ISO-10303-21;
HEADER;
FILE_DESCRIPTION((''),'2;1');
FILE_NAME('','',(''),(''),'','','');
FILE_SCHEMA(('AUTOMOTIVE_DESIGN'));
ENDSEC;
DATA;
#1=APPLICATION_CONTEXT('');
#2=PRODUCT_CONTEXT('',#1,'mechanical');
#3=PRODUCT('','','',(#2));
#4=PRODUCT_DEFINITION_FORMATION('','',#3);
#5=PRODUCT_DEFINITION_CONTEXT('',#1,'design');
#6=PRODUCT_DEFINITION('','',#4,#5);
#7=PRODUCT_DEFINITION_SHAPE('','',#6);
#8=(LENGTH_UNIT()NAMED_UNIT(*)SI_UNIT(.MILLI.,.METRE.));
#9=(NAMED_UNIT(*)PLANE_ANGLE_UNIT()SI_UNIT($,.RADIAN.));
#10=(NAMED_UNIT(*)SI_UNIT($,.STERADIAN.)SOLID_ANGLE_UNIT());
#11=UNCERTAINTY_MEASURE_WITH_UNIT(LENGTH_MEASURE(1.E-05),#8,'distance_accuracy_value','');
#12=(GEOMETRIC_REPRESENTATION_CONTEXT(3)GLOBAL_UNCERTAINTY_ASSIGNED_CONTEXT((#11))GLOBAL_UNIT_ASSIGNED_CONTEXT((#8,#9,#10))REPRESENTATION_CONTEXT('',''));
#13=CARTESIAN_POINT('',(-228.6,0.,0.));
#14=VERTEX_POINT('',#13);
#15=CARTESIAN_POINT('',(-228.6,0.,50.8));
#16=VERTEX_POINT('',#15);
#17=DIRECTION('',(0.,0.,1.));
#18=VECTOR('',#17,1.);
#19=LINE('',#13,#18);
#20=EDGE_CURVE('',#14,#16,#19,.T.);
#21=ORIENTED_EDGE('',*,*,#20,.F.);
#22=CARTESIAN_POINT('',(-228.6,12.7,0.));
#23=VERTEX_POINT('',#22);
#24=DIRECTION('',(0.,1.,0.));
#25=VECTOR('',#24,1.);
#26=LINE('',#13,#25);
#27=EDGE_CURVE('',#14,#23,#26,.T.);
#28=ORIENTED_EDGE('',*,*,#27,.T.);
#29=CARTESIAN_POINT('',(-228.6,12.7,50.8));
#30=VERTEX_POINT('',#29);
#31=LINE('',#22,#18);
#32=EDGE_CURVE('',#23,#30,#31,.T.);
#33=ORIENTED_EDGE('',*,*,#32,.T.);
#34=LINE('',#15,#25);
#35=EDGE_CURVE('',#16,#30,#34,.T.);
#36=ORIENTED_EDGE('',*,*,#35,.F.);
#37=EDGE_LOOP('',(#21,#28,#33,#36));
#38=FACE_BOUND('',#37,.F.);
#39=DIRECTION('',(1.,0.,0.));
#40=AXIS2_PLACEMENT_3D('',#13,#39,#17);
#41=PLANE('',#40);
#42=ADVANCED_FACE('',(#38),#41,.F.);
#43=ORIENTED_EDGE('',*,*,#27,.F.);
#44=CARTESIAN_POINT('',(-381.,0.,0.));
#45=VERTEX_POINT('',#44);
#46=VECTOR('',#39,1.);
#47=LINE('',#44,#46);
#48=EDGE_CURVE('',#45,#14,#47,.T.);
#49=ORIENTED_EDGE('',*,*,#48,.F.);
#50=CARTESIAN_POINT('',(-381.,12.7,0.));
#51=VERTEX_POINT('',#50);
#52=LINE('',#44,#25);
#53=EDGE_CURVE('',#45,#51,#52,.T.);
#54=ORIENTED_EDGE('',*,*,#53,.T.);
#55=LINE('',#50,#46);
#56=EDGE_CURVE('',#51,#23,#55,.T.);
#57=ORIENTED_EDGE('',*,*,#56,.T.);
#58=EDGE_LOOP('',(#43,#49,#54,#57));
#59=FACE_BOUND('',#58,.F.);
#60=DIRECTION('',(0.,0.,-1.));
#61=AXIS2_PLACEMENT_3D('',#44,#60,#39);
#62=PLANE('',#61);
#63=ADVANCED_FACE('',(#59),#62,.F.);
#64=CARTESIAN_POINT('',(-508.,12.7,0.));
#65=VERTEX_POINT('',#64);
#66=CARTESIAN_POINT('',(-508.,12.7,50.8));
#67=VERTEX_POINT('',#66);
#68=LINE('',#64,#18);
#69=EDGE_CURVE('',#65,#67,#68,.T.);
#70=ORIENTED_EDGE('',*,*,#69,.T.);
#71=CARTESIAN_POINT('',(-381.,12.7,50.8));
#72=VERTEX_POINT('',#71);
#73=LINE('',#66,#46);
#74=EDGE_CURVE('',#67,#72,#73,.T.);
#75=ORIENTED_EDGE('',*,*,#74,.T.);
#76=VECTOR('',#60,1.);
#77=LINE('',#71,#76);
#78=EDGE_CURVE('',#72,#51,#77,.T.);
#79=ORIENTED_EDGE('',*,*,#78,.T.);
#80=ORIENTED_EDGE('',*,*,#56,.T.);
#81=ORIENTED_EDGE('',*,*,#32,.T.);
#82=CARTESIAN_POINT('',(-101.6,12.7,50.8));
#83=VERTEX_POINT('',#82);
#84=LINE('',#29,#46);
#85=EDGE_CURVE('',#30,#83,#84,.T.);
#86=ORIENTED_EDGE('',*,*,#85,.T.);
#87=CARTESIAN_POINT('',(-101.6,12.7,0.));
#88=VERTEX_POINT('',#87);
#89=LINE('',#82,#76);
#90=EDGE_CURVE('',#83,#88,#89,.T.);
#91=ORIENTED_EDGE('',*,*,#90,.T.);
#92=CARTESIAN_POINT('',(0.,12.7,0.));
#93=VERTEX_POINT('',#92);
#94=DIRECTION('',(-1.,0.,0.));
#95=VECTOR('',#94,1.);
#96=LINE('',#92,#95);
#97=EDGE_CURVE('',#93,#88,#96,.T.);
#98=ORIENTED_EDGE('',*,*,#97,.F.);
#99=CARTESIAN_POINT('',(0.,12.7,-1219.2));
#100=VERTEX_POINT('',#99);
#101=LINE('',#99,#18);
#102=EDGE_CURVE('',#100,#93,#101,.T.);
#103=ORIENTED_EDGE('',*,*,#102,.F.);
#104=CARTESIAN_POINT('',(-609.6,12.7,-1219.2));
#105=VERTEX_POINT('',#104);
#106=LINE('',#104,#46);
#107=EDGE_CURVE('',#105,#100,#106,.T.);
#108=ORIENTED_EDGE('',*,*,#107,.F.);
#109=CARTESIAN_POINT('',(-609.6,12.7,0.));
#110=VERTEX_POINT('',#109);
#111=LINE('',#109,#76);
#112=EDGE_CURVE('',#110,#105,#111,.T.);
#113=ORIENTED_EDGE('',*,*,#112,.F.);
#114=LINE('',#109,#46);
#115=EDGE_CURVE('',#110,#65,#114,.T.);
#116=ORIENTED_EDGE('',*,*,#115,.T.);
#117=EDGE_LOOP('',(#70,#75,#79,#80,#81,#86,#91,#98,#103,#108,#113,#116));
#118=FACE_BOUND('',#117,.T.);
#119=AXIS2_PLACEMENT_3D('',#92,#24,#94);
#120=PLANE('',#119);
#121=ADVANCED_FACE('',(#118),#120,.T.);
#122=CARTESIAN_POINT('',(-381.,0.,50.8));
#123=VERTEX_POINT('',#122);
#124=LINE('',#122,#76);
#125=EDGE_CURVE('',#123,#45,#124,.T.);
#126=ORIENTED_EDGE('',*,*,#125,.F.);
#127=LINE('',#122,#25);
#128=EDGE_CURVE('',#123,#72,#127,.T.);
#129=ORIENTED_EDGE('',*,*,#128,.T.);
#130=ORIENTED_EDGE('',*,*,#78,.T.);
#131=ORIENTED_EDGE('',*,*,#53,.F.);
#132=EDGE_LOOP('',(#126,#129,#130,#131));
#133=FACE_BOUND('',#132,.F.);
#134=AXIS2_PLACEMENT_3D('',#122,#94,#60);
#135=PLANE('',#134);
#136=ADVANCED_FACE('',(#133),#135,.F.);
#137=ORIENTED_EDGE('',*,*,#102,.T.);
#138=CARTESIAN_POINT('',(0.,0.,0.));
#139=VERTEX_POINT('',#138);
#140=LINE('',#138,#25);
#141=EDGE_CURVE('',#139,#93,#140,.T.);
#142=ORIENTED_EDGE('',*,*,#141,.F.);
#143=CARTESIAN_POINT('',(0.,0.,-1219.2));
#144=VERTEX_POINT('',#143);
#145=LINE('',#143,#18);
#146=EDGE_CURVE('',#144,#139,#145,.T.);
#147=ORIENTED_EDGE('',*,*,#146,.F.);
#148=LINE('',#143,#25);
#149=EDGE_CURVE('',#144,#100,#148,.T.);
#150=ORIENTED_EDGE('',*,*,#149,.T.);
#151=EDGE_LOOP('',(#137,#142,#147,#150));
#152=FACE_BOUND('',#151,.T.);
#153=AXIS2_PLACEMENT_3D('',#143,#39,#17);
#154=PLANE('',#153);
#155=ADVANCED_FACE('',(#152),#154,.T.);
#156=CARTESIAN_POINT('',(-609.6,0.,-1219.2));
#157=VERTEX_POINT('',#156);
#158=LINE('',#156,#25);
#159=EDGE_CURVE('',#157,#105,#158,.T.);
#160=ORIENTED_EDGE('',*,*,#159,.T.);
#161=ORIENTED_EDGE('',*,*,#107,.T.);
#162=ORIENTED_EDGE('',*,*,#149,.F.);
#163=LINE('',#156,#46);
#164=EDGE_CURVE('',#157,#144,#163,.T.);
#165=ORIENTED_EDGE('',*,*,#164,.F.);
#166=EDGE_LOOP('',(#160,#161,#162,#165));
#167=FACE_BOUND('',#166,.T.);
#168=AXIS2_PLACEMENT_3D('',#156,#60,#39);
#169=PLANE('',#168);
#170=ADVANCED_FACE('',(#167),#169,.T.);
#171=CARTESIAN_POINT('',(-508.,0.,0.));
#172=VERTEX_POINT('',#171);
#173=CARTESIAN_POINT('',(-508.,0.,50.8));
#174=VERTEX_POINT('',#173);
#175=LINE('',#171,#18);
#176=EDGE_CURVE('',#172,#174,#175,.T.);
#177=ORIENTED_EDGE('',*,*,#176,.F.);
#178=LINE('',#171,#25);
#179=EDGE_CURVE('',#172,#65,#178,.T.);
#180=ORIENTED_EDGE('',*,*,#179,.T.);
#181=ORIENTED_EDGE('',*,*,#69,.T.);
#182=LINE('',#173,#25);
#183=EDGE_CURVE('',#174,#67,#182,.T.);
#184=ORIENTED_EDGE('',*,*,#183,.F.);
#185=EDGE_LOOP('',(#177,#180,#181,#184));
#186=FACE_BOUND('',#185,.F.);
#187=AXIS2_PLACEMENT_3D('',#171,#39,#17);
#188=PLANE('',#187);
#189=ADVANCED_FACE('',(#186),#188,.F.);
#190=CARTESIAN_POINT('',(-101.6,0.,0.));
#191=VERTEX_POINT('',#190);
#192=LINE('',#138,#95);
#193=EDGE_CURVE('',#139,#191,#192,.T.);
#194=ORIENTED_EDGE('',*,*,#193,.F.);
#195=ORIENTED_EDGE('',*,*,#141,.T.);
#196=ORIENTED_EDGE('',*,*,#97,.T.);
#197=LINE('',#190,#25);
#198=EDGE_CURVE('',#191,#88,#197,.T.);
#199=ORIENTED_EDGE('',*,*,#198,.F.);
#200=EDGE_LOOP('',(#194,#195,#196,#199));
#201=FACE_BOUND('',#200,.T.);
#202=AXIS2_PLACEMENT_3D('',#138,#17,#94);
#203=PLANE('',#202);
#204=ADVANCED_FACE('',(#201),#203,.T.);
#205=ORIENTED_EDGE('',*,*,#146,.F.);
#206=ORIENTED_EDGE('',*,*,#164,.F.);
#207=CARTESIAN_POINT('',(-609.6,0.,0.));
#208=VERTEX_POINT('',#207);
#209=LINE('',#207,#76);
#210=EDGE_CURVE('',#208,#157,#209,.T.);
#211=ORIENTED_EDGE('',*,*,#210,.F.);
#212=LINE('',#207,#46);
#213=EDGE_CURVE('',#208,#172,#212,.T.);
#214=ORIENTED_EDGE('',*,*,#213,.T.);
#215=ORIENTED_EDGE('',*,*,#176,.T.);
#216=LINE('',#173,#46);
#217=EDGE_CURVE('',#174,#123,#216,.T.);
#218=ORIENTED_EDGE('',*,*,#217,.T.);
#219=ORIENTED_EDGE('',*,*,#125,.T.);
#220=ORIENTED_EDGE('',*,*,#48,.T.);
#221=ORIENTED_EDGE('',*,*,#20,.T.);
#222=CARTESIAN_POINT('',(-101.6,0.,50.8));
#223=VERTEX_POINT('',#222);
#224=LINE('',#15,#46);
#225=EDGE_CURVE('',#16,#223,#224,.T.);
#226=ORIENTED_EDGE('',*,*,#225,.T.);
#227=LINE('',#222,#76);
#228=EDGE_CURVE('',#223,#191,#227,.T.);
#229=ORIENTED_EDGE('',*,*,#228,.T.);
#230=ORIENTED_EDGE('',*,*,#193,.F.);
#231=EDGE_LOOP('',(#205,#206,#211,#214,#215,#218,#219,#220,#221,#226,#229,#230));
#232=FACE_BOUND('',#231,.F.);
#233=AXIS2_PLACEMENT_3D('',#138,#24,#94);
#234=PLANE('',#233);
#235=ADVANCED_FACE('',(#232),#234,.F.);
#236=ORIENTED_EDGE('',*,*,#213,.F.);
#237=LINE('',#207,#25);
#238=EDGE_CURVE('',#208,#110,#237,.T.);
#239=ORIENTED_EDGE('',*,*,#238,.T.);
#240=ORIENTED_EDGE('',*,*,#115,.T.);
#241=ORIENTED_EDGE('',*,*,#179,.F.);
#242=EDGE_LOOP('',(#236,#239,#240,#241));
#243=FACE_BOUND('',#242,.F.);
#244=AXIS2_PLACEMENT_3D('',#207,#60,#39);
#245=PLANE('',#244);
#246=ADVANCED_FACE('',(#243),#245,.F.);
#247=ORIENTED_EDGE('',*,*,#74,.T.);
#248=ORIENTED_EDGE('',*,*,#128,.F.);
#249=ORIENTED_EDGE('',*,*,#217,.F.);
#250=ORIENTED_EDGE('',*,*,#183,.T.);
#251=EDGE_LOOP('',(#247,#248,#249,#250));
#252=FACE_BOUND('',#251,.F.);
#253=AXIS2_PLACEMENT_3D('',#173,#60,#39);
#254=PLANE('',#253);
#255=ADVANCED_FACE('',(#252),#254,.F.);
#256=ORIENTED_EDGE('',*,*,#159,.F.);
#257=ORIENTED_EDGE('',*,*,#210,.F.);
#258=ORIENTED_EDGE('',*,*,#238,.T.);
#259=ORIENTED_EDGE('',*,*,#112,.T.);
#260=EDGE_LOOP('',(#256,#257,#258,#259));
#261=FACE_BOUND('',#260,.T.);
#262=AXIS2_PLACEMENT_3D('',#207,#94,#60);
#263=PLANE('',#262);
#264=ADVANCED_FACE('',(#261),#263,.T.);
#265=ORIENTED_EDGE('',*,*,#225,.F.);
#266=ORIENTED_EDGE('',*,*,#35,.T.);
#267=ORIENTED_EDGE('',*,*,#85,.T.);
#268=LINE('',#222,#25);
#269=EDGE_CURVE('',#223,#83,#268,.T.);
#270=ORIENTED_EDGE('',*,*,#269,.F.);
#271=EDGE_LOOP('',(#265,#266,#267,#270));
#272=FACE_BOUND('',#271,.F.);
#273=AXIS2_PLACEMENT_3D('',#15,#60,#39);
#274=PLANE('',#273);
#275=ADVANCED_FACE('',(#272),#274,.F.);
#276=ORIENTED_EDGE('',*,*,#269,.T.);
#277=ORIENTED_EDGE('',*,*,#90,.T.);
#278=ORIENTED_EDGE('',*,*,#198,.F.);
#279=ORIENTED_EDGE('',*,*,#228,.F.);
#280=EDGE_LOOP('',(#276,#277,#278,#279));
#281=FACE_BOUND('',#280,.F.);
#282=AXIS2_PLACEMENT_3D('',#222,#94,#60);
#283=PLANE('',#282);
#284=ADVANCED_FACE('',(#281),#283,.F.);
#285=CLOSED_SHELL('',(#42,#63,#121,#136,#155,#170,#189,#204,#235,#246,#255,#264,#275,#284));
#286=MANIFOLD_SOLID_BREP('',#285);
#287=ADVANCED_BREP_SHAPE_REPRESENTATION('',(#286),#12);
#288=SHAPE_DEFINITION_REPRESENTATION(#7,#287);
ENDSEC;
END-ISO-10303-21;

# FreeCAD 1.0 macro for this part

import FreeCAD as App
import Part
import Sketcher

V = App.Vector
Q = App.Units.Quantity

doc = App.newDocument("Part")
params = doc.addObject("Spreadsheet::Sheet", "Params")
for row, (alias, value) in enumerate([
    ("sketch1_width", "4 in"),
    ("sketch1_width2", "5 in"),
    ("sketch1_width3", "6 in"),
    ("sketch1_height", "48 in"),
    ("sketch1_height2", "2 in"),
    ("pad1_length", "0.5 in"),
], start=1):
    params.set(f"A{row}", alias)
    params.set(f"B{row}", "=" + value)
    params.setAlias(f"B{row}", alias)

body = doc.addObject("PartDesign::Body", "Body")

# Sketch on XZ plane
sketch1 = body.newObject("Sketcher::SketchObject", "Sketch")
sketch1.AttachmentSupport = (doc.getObject("XZ_Plane"), [""])
sketch1.MapMode = "FlatFace"
sketch1.addGeometry([
    Part.LineSegment(V(-609.6, -1219.2, 0), V(-609.6, 0, 0)),  # 0
    Part.LineSegment(V(-609.6, 0, 0), V(-508, 0, 0)),  # 1
    Part.LineSegment(V(-508, 0, 0), V(-508, 50.8, 0)),  # 2
    Part.LineSegment(V(-508, 50.8, 0), V(-381, 50.8, 0)),  # 3
    Part.LineSegment(V(-381, 50.8, 0), V(-381, 0, 0)),  # 4
    Part.LineSegment(V(-381, 0, 0), V(-228.6, 0, 0)),  # 5
    Part.LineSegment(V(-228.6, 0, 0), V(-228.6, 50.8, 0)),  # 6
    Part.LineSegment(V(-228.6, 50.8, 0), V(-101.6, 50.8, 0)),  # 7
    Part.LineSegment(V(-101.6, 50.8, 0), V(-101.6, 0, 0)),  # 8
    Part.LineSegment(V(-101.6, 0, 0), V(0, 0, 0)),  # 9
    Part.LineSegment(V(0, 0, 0), V(0, -1219.2, 0)),  # 10
    Part.LineSegment(V(0, -1219.2, 0), V(-609.6, -1219.2, 0)),  # 11
], False)
sketch1.addConstraint([
    Sketcher.Constraint("Coincident", 0, 2, 1, 1),
    Sketcher.Constraint("Coincident", 1, 2, 2, 1),
    Sketcher.Constraint("Coincident", 2, 2, 3, 1),
    Sketcher.Constraint("Coincident", 3, 2, 4, 1),
    Sketcher.Constraint("Coincident", 4, 2, 5, 1),
    Sketcher.Constraint("Coincident", 5, 2, 6, 1),
    Sketcher.Constraint("Coincident", 6, 2, 7, 1),
    Sketcher.Constraint("Coincident", 7, 2, 8, 1),
    Sketcher.Constraint("Coincident", 8, 2, 9, 1),
    Sketcher.Constraint("Coincident", 9, 2, 10, 1),
    Sketcher.Constraint("Coincident", 10, 2, 11, 1),
    Sketcher.Constraint("Coincident", 11, 2, 0, 1),
    Sketcher.Constraint("Vertical", 0),
    Sketcher.Constraint("Horizontal", 1),
    Sketcher.Constraint("Vertical", 2),
    Sketcher.Constraint("Horizontal", 3),
    Sketcher.Constraint("Vertical", 4),
    Sketcher.Constraint("Horizontal", 5),
    Sketcher.Constraint("Vertical", 6),
    Sketcher.Constraint("Horizontal", 7),
    Sketcher.Constraint("Vertical", 8),
    Sketcher.Constraint("Horizontal", 9),
    Sketcher.Constraint("Vertical", 10),
    Sketcher.Constraint("Horizontal", 11),
    Sketcher.Constraint("Coincident", 9, 2, -1, 1),
    Sketcher.Constraint("PointOnObject", 0, 2, -1),
    Sketcher.Constraint("PointOnObject", 4, 2, -1),
    Sketcher.Constraint("Horizontal", 3, 2, 6, 2),
    Sketcher.Constraint("Equal", 3, 7),
    Sketcher.Constraint("Equal", 1, 9),
    Sketcher.Constraint("DistanceX", 1, 1, 1, 2, Q("4 in")),
    Sketcher.Constraint("DistanceX", 3, 1, 3, 2, Q("5 in")),
    Sketcher.Constraint("DistanceX", 5, 1, 5, 2, Q("6 in")),
    Sketcher.Constraint("DistanceY", 0, 1, 0, 2, Q("48 in")),
    Sketcher.Constraint("DistanceY", 2, 1, 2, 2, Q("2 in")),
])
sketch1.setExpression("Constraints[30]", "Params.sketch1_width")
sketch1.setExpression("Constraints[31]", "Params.sketch1_width2")
sketch1.setExpression("Constraints[32]", "Params.sketch1_width3")
sketch1.setExpression("Constraints[33]", "Params.sketch1_height")
sketch1.setExpression("Constraints[34]", "Params.sketch1_height2")
pad1 = body.newObject("PartDesign::Pad", "Pad")
pad1.Profile = sketch1
pad1.setExpression("Length", "Params.pad1_length")
pad1.Reversed = True

doc.recompute()
